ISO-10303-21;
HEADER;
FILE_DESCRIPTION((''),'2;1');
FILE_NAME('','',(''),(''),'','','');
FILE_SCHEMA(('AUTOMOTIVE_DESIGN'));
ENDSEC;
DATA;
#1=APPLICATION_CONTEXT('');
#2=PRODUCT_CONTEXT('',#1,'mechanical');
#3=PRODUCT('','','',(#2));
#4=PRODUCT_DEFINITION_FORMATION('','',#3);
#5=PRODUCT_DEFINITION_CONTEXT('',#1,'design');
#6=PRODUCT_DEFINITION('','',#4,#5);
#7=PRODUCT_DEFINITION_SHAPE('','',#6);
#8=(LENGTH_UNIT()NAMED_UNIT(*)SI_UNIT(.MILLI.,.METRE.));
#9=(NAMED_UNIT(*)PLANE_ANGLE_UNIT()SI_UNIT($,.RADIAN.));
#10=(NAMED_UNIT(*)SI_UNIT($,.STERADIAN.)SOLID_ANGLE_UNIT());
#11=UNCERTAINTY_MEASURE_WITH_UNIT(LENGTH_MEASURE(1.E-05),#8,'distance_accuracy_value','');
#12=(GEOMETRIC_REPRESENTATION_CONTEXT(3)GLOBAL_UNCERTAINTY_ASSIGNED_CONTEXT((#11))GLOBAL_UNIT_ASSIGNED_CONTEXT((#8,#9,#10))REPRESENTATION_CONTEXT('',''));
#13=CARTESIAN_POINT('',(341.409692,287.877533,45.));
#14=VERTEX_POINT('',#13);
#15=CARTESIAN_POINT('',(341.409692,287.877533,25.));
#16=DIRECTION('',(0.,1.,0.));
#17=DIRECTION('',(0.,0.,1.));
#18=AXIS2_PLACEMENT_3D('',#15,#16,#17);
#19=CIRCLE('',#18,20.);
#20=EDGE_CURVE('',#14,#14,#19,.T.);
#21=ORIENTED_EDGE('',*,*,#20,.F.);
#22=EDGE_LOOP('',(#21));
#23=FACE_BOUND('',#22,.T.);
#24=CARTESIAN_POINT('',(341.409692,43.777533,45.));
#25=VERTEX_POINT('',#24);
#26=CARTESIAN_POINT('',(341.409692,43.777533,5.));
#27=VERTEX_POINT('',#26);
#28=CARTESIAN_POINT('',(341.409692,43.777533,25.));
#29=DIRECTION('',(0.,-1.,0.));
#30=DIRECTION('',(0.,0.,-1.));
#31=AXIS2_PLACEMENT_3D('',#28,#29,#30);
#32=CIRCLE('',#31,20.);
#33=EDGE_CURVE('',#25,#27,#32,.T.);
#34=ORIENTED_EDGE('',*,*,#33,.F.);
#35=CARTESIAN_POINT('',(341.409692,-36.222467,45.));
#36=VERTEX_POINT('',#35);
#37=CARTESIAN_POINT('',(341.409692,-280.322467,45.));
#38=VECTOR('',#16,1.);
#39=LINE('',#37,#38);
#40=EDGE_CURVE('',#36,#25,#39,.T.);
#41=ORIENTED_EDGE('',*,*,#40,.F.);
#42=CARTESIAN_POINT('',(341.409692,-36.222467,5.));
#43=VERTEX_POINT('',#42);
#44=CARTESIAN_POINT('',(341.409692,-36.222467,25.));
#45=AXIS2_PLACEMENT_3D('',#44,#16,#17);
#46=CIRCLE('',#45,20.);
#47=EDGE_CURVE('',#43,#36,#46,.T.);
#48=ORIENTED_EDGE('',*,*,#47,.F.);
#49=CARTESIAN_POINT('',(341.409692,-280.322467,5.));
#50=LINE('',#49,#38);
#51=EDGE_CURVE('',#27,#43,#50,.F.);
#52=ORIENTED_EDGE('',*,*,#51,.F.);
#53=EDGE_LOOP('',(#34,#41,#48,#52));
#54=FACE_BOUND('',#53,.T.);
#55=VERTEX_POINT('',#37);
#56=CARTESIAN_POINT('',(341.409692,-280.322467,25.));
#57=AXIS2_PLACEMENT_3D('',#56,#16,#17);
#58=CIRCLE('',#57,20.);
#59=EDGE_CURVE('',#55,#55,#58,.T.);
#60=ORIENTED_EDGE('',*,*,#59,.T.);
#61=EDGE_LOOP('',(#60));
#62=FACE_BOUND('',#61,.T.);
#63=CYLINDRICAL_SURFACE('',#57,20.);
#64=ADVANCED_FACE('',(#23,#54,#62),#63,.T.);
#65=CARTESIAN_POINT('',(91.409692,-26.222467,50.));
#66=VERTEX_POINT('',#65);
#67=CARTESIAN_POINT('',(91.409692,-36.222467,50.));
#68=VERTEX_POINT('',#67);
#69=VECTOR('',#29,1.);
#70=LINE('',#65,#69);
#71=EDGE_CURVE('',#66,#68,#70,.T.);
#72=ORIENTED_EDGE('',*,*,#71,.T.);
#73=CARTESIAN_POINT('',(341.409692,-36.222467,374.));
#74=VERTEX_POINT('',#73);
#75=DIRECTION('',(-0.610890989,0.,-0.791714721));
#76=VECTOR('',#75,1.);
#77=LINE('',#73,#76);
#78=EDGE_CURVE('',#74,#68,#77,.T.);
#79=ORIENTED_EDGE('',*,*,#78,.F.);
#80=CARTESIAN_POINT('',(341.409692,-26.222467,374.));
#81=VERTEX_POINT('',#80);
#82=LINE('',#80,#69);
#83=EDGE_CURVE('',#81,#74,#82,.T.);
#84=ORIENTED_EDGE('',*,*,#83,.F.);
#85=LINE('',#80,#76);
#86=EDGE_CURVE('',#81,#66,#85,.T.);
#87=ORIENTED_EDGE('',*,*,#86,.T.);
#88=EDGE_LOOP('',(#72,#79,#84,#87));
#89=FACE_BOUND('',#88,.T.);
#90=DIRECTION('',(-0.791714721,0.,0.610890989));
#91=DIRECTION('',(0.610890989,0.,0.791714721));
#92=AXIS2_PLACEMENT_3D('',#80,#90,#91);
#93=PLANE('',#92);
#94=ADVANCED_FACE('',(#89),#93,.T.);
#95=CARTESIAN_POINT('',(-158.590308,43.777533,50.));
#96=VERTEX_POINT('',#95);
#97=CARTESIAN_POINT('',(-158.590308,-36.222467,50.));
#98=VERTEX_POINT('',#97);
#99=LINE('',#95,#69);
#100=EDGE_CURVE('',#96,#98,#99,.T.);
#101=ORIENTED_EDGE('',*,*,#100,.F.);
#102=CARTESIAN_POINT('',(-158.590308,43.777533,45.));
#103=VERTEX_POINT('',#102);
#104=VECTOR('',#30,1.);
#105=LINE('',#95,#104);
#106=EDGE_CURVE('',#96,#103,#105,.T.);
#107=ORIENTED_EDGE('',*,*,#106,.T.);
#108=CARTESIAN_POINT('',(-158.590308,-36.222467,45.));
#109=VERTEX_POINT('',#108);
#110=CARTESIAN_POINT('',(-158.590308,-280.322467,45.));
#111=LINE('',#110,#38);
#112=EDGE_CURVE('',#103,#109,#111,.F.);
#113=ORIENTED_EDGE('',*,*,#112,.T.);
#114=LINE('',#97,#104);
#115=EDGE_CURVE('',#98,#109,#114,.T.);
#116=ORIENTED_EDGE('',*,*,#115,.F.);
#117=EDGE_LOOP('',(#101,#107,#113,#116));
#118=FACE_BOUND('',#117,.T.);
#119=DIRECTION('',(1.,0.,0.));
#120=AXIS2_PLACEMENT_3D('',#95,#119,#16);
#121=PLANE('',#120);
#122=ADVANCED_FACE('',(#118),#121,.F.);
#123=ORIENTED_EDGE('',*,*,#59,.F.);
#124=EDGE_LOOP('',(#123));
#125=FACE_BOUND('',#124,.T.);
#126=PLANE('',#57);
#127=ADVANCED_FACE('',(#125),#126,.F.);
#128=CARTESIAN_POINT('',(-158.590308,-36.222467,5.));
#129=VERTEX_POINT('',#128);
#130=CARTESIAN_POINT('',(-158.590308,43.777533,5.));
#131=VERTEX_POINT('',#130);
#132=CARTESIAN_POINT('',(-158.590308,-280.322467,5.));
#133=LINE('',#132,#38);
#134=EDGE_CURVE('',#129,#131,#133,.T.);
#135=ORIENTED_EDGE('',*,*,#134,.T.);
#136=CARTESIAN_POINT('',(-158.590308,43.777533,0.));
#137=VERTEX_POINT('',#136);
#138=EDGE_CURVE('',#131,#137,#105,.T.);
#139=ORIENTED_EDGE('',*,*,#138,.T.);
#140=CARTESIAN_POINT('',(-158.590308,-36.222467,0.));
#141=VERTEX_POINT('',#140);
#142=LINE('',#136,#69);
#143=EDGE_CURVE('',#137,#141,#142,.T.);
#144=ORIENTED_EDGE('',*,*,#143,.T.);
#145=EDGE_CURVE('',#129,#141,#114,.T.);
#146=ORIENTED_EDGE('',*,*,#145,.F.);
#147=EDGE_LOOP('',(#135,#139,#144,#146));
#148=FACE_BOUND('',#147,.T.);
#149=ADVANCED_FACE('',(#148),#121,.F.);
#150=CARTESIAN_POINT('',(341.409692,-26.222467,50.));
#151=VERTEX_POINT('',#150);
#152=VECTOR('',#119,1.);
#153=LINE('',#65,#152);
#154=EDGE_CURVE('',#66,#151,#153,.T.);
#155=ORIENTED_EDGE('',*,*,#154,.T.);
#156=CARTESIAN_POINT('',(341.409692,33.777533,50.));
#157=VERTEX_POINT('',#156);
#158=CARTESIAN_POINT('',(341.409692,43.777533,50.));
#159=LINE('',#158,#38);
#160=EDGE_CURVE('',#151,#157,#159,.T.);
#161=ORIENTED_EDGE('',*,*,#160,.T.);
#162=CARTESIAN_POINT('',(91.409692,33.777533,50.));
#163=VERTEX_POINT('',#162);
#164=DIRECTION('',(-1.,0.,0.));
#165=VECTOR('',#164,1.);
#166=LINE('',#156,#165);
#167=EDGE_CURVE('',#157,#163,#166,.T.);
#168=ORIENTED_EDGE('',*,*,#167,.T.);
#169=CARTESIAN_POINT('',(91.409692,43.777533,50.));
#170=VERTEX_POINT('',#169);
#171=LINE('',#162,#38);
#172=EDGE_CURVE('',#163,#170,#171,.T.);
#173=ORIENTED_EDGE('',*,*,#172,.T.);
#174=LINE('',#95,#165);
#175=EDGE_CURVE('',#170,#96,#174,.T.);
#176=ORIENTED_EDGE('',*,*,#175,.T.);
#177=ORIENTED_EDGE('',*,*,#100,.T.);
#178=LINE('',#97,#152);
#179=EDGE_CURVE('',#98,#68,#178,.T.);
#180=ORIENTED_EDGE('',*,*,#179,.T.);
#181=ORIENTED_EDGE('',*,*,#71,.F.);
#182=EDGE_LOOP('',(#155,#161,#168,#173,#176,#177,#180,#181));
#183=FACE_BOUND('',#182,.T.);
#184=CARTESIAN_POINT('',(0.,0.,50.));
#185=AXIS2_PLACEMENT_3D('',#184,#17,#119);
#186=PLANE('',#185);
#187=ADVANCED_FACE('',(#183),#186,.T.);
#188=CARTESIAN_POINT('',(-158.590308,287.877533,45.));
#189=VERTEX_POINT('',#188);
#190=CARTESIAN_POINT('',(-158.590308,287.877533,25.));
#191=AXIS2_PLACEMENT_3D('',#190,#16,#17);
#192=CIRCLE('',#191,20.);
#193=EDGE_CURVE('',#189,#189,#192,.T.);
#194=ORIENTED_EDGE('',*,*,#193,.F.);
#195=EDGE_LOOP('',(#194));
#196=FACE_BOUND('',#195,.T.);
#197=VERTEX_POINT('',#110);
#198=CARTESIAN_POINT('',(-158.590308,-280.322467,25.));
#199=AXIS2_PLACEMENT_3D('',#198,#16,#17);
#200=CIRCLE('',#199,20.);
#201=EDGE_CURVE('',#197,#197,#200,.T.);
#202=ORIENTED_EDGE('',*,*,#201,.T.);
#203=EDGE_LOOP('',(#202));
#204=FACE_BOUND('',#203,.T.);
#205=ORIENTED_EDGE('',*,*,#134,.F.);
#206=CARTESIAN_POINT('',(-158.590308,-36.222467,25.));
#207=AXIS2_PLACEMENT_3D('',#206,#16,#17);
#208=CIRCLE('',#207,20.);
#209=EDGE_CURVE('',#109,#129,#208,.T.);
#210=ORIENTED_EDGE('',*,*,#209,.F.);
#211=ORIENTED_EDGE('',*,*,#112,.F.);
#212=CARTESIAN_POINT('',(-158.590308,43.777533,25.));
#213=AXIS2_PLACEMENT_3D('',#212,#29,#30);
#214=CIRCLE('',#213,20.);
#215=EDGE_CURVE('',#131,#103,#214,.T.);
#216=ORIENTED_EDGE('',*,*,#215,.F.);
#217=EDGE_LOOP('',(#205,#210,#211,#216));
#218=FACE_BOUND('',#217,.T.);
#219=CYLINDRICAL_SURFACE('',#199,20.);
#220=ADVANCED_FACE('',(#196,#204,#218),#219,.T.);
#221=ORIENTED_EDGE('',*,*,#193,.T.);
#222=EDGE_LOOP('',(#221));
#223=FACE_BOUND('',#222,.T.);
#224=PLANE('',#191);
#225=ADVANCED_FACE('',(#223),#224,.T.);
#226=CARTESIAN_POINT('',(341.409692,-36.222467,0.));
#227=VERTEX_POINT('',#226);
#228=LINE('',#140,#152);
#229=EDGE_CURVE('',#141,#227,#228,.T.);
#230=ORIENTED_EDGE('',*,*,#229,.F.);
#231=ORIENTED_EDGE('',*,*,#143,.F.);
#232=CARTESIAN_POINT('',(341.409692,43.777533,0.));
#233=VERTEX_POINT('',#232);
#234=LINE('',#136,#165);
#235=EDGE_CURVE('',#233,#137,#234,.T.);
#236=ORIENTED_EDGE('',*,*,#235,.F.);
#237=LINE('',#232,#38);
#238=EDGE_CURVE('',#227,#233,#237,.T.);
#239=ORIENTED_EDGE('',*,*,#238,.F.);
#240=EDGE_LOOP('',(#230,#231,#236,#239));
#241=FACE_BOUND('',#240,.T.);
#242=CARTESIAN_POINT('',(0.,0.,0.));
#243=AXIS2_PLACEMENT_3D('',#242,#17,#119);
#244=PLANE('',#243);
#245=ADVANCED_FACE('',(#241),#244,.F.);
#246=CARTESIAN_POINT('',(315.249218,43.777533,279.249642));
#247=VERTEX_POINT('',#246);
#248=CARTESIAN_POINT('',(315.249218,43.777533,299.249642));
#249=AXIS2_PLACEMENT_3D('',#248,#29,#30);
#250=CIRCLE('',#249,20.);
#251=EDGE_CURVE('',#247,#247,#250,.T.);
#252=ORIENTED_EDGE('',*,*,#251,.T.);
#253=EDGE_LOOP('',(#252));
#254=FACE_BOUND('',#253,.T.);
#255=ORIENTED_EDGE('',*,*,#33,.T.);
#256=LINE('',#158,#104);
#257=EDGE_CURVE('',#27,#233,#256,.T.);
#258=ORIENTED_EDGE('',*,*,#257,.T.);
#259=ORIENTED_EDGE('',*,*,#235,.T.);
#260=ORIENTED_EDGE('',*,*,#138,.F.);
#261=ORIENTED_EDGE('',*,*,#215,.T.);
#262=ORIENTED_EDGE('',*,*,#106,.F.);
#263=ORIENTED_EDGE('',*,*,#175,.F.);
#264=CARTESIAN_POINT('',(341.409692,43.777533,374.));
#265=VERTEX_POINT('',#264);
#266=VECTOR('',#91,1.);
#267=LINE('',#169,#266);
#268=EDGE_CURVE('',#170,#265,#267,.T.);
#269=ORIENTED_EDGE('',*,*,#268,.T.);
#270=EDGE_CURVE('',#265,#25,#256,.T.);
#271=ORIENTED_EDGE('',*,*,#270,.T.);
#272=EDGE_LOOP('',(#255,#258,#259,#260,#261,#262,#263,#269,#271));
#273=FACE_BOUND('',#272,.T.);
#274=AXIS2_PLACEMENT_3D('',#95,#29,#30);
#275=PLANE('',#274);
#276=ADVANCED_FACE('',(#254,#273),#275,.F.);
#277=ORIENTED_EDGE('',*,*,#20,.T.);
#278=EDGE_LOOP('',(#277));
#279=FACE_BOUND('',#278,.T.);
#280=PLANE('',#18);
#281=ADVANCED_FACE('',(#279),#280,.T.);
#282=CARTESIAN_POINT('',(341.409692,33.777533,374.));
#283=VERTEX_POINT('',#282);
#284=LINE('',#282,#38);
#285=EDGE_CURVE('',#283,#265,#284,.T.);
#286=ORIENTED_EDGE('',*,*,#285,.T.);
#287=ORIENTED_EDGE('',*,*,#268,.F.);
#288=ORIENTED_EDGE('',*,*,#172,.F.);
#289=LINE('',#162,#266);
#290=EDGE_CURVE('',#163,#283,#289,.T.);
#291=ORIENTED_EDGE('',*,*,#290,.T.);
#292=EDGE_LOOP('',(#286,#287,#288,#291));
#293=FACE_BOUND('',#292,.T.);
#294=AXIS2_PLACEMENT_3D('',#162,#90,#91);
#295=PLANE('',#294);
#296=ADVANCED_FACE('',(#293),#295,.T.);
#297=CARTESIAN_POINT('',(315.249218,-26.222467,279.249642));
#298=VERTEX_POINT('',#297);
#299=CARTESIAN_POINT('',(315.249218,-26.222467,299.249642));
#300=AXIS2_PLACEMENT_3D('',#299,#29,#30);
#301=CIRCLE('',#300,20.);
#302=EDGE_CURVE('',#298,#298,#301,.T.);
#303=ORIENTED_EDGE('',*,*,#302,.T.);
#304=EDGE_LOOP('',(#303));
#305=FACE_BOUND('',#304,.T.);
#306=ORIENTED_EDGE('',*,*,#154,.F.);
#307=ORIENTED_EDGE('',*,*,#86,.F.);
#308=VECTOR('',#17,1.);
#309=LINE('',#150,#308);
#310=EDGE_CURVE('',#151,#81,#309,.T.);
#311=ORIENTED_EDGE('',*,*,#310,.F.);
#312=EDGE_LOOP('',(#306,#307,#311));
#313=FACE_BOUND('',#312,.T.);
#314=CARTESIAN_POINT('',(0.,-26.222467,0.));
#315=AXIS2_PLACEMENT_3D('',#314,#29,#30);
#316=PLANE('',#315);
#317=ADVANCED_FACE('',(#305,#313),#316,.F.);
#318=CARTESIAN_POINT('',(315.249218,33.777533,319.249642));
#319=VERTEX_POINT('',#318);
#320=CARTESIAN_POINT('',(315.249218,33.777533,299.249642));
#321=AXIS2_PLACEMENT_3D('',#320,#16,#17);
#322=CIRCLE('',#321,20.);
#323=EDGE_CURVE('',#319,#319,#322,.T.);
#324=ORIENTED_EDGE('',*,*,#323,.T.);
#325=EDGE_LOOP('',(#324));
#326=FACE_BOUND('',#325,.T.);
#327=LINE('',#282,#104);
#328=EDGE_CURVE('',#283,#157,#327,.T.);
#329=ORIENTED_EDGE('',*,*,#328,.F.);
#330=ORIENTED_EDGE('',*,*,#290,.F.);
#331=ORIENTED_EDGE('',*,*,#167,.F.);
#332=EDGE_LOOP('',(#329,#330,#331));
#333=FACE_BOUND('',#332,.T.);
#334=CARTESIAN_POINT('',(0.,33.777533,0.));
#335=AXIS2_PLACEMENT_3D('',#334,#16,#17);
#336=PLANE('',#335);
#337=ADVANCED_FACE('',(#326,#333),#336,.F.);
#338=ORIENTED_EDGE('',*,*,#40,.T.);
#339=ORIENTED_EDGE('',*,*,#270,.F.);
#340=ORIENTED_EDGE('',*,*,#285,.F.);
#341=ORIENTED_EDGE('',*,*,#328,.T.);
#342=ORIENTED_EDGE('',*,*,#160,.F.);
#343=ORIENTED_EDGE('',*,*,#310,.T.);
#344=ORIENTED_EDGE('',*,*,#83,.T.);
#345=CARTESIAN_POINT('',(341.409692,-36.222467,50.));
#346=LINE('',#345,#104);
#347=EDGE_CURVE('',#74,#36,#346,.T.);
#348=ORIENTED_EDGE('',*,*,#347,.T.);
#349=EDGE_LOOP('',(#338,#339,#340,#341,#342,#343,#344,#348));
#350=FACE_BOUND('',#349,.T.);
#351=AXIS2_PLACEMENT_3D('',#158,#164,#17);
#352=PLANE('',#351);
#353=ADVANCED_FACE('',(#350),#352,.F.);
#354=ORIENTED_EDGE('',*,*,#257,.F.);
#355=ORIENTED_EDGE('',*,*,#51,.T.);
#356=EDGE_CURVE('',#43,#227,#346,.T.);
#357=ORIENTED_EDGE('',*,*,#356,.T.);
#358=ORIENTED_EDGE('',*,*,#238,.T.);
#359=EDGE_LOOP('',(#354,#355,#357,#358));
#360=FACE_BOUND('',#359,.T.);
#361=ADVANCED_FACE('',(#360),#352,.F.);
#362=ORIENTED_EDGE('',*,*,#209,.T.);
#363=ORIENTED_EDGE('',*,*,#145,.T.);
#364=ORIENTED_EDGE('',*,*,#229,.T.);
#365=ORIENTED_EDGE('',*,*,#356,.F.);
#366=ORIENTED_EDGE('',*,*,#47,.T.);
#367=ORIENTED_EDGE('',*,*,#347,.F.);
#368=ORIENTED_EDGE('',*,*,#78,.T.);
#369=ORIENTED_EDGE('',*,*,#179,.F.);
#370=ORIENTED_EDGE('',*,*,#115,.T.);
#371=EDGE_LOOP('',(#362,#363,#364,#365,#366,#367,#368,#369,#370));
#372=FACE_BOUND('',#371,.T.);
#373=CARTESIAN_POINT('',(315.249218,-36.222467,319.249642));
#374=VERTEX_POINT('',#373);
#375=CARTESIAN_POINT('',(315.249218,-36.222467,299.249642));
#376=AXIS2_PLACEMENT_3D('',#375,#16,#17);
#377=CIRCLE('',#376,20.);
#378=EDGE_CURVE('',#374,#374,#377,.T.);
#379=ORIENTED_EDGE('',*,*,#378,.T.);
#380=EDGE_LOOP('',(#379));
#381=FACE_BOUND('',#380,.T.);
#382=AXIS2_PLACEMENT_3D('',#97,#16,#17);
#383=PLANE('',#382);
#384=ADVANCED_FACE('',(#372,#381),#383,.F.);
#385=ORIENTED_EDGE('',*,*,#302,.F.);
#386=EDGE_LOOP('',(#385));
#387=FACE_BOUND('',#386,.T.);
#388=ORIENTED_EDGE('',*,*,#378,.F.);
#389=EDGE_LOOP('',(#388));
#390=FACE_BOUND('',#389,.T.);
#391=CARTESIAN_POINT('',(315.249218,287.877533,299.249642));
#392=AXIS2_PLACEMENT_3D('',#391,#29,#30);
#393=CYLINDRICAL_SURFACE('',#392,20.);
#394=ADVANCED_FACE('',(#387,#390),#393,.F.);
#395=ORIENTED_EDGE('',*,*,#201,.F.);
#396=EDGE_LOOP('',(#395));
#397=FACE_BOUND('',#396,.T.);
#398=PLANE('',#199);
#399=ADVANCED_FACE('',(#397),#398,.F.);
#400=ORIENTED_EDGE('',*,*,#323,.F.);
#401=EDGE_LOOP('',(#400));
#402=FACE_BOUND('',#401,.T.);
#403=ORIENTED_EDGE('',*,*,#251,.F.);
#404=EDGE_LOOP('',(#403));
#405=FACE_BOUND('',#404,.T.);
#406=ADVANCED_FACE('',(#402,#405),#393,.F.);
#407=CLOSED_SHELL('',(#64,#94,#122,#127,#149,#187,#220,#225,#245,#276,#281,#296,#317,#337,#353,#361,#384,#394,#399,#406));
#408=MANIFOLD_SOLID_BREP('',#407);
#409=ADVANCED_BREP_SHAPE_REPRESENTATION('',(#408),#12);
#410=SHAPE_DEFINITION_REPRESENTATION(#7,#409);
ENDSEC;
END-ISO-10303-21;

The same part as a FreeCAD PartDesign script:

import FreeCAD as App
import Part
import Sketcher
from FreeCAD import Vector
Q = App.Units.Quantity

doc = App.newDocument("Part")
body = doc.addObject("PartDesign::Body", "Body")

# Sketch on XY plane
sketch1 = body.newObject("Sketcher::SketchObject", "Sketch")
sketch1.AttachmentSupport = (doc.getObject("XY_Plane"), [""])
sketch1.MapMode = "FlatFace"
sketch1.addGeometry([
    Part.LineSegment(Vector(-159, 44, 0), Vector(-159, -36, 0)),
    Part.LineSegment(Vector(-159, -36, 0), Vector(341, -36, 0)),
    Part.LineSegment(Vector(341, -36, 0), Vector(341, 44, 0)),
    Part.LineSegment(Vector(341, 44, 0), Vector(-159, 44, 0)),
], False)
sketch1.addConstraint([
    Sketcher.Constraint("Coincident", 0, 2, 1, 1),
    Sketcher.Constraint("Coincident", 1, 2, 2, 1),
    Sketcher.Constraint("Coincident", 2, 2, 3, 1),
    Sketcher.Constraint("Coincident", 3, 2, 0, 1),
    Sketcher.Constraint("Vertical", 0),
    Sketcher.Constraint("Horizontal", 1),
    Sketcher.Constraint("Vertical", 2),
    Sketcher.Constraint("Horizontal", 3),
    Sketcher.Constraint("DistanceX", 1, 1, 1, 2, Q("500 mm")),
    Sketcher.Constraint("DistanceY", 0, 2, 0, 1, Q("80 mm")),
    Sketcher.Constraint("DistanceX", 0, 2, -1, 1, Q("158.590308 mm")),
    Sketcher.Constraint("DistanceY", 0, 2, -1, 1, Q("36.222467 mm")),
])
pad1 = body.newObject("PartDesign::Pad", "Pad")
pad1.Profile = sketch1
pad1.Length = 50

# Sketch on XZ plane
sketch2 = body.newObject("Sketcher::SketchObject", "Sketch001")
sketch2.AttachmentSupport = (doc.getObject("XZ_Plane"), [""])
sketch2.MapMode = "FlatFace"
sketch2.AttachmentOffset = App.Placement(Vector(0, 0, -43.777533), App.Rotation())
sketch2.addGeometry([
    Part.Circle(Vector(-159, 25, 0), Vector(0, 0, 1), 20),
    Part.Circle(Vector(341, 25, 0), Vector(0, 0, 1), 20),
], False)
sketch2.addConstraint([
    Sketcher.Constraint("Equal", 0, 1),
    Sketcher.Constraint("Horizontal", 0, 3, 1, 3),
    Sketcher.Constraint("Diameter", 0, Q("40 mm")),
    Sketcher.Constraint("DistanceY", -1, 1, 0, 3, Q("25 mm")),
    Sketcher.Constraint("DistanceX", 0, 3, 1, 3, Q("500 mm")),
    Sketcher.Constraint("DistanceX", 0, 3, -1, 1, Q("158.590308 mm")),
])
pad2 = body.newObject("PartDesign::Pad", "Pad001")
pad2.Profile = sketch2
pad2.Type = "TwoLengths"
pad2.Length = 244.1
pad2.Length2 = 324.1
pad2.Reversed = True

# Sketch on XZ plane
sketch3 = body.newObject("Sketcher::SketchObject", "Sketch002")
sketch3.AttachmentSupport = (doc.getObject("XZ_Plane"), [""])
sketch3.MapMode = "FlatFace"
sketch3.AttachmentOffset = App.Placement(Vector(0, 0, 36.222467), App.Rotation())
sketch3.addGeometry([
    Part.LineSegment(Vector(341, 50, 0), Vector(341, 374, 0)),
    Part.LineSegment(Vector(341, 374, 0), Vector(91, 50, 0)),
    Part.LineSegment(Vector(91, 50, 0), Vector(341, 50, 0)),
], False)
sketch3.addConstraint([
    Sketcher.Constraint("Coincident", 0, 2, 1, 1),
    Sketcher.Constraint("Coincident", 1, 2, 2, 1),
    Sketcher.Constraint("Coincident", 2, 2, 0, 1),
    Sketcher.Constraint("Vertical", 0),
    Sketcher.Constraint("Horizontal", 2),
    Sketcher.Constraint("DistanceX", 2, 1, 2, 2, Q("250 mm")),
    Sketcher.Constraint("DistanceY", 0, 1, 0, 2, Q("324 mm")),
    Sketcher.Constraint("DistanceY", -1, 1, 0, 2, Q("374 mm")),
    Sketcher.Constraint("DistanceX", -1, 1, 0, 2, Q("341.409692 mm")),
])
pad3 = body.newObject("PartDesign::Pad", "Pad002")
pad3.Profile = sketch3
pad3.Length = 10
pad3.Reversed = True

# Sketch on XZ plane
sketch4 = body.newObject("Sketcher::SketchObject", "Sketch003")
sketch4.AttachmentSupport = (doc.getObject("XZ_Plane"), [""])
sketch4.MapMode = "FlatFace"
sketch4.AttachmentOffset = App.Placement(Vector(0, 0, -43.777533), App.Rotation())
sketch4.addGeometry([
    Part.LineSegment(Vector(341, 50, 0), Vector(91, 50, 0)),
    Part.LineSegment(Vector(91, 50, 0), Vector(341, 374, 0)),
    Part.LineSegment(Vector(341, 374, 0), Vector(341, 50, 0)),
], False)
sketch4.addConstraint([
    Sketcher.Constraint("Coincident", 0, 2, 1, 1),
    Sketcher.Constraint("Coincident", 1, 2, 2, 1),
    Sketcher.Constraint("Coincident", 2, 2, 0, 1),
    Sketcher.Constraint("Horizontal", 0),
    Sketcher.Constraint("Vertical", 2),
    Sketcher.Constraint("DistanceX", 0, 2, 0, 1, Q("250 mm")),
    Sketcher.Constraint("DistanceY", 2, 2, 2, 1, Q("324 mm")),
    Sketcher.Constraint("DistanceY", -1, 1, 0, 2, Q("50 mm")),
    Sketcher.Constraint("DistanceX", -1, 1, 0, 2, Q("91.409692 mm")),
])
pad4 = body.newObject("PartDesign::Pad", "Pad003")
pad4.Profile = sketch4
pad4.Length = 10

# Sketch on XZ plane
sketch5 = body.newObject("Sketcher::SketchObject", "Sketch004")
sketch5.AttachmentSupport = (doc.getObject("XZ_Plane"), [""])
sketch5.MapMode = "FlatFace"
sketch5.AttachmentOffset = App.Placement(Vector(0, 0, 36.222467), App.Rotation())
sketch5.addGeometry(Part.Circle(Vector(315, 299, 0), Vector(0, 0, 1), 20), False)
sketch5.addConstraint([
    Sketcher.Constraint("Diameter", 0, Q("40 mm")),
    Sketcher.Constraint("DistanceX", -1, 1, 0, 3, Q("315.249218 mm")),
    Sketcher.Constraint("DistanceY", -1, 1, 0, 3, Q("299.249642 mm")),
])
pocket1 = body.newObject("PartDesign::Pocket", "Pocket")
pocket1.Profile = sketch5
pocket1.Type = "ThroughAll"
pocket1.Midplane = True

doc.recompute()
